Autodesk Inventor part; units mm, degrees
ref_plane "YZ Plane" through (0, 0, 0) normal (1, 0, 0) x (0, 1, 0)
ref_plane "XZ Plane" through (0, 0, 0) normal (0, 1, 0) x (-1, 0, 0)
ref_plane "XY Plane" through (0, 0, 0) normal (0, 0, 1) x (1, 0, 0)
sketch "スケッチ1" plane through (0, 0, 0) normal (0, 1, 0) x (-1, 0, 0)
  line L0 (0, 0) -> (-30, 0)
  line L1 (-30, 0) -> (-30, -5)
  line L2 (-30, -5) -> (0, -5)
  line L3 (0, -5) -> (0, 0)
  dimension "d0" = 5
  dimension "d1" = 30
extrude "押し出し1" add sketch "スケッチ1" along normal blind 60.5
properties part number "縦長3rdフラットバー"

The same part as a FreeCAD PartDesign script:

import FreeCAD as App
import Part
import Sketcher
from FreeCAD import Vector

doc = App.newDocument("Part")
body = doc.addObject("PartDesign::Body", "Body")

# Sketch on XZ plane
sketch1 = body.newObject("Sketcher::SketchObject", "Sketch")
sketch1.AttachmentSupport = (doc.getObject("XZ_Plane"), [""])
sketch1.MapMode = "FlatFace"
sketch1.addGeometry([
    Part.LineSegment(Vector(0, -5, 0), Vector(0, 0, 0)),
    Part.LineSegment(Vector(0, 0, 0), Vector(30, 0, 0)),
    Part.LineSegment(Vector(30, 0, 0), Vector(30, -5, 0)),
    Part.LineSegment(Vector(30, -5, 0), Vector(0, -5, 0)),
], False)
sketch1.addConstraint([
    Sketcher.Constraint("Coincident", 0, 2, 1, 1),
    Sketcher.Constraint("Coincident", 1, 2, 2, 1),
    Sketcher.Constraint("Coincident", 2, 2, 3, 1),
    Sketcher.Constraint("Coincident", 3, 2, 0, 1),
    Sketcher.Constraint("Vertical", 0),
    Sketcher.Constraint("Horizontal", 1),
    Sketcher.Constraint("Vertical", 2),
    Sketcher.Constraint("Horizontal", 3),
    Sketcher.Constraint("Coincident", 0, 2, -1, 1),
    Sketcher.Constraint("DistanceX", 1, 1, 1, 2, 30.0),
    Sketcher.Constraint("DistanceY", 0, 1, 0, 2, 5.0),
])
pad1 = body.newObject("PartDesign::Pad", "Pad")
pad1.Profile = sketch1
pad1.Length = 60.5
pad1.Reversed = True

doc.recompute()
